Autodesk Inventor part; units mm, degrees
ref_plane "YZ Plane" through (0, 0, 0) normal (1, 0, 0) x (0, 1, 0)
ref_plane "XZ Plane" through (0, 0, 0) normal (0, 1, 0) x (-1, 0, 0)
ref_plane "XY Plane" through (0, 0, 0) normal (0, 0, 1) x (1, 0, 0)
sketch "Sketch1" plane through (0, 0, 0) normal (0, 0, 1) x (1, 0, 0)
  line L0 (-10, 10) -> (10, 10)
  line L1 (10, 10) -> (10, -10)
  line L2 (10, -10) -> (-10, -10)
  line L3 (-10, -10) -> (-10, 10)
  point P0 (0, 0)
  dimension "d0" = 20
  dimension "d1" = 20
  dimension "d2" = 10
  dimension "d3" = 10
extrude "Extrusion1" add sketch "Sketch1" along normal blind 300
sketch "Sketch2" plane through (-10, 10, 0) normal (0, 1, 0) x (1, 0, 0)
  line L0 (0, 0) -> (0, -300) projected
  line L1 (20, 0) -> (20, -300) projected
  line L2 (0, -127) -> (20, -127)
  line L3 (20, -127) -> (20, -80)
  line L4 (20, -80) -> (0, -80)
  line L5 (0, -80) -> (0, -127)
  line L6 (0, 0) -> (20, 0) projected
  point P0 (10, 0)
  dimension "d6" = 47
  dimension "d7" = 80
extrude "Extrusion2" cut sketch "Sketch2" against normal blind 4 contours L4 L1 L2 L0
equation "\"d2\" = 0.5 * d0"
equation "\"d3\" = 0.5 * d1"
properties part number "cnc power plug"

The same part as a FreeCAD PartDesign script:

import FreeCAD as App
import Part
import Sketcher

V = App.Vector

doc = App.newDocument("Part")
body = doc.addObject("PartDesign::Body", "Body")

# Sketch on XY plane
sketch1 = body.newObject("Sketcher::SketchObject", "Sketch")
sketch1.AttachmentSupport = (doc.getObject("XY_Plane"), [""])
sketch1.MapMode = "FlatFace"
sketch1.addGeometry(Part.LineSegment(V(10, 10, 0), V(-10, 10, 0)), False)
sketch1.addGeometry(Part.LineSegment(V(-10, 10, 0), V(-10, -10, 0)), False)
sketch1.addGeometry(Part.LineSegment(V(-10, -10, 0), V(10, -10, 0)), False)
sketch1.addGeometry(Part.LineSegment(V(10, -10, 0), V(10, 10, 0)), False)
sketch1.addConstraint(Sketcher.Constraint("Coincident", 0, 2, 1, 1))
sketch1.addConstraint(Sketcher.Constraint("Coincident", 1, 2, 2, 1))
sketch1.addConstraint(Sketcher.Constraint("Coincident", 2, 2, 3, 1))
sketch1.addConstraint(Sketcher.Constraint("Coincident", 3, 2, 0, 1))
sketch1.addConstraint(Sketcher.Constraint("Horizontal", 0))
sketch1.addConstraint(Sketcher.Constraint("Vertical", 1))
sketch1.addConstraint(Sketcher.Constraint("Horizontal", 2))
sketch1.addConstraint(Sketcher.Constraint("Vertical", 3))
sketch1.addConstraint(Sketcher.Constraint("Symmetric", 0, 2, 2, 2, -1, 1))
sketch1.addConstraint(Sketcher.Constraint("Equal", 2, 1))
sketch1.addConstraint(Sketcher.Constraint("DistanceX", 0, 2, 0, 1, 20.0))
pad1 = body.newObject("PartDesign::Pad", "Pad")
pad1.Profile = sketch1
pad1.Length = 300

# Sketch on XZ plane
sketch2 = body.newObject("Sketcher::SketchObject", "Sketch001")
sketch2.AttachmentSupport = (doc.getObject("XZ_Plane"), [""])
sketch2.MapMode = "FlatFace"
sketch2.AttachmentOffset = App.Placement(V(0, 0, -10), App.Rotation())
sketch2.addGeometry(Part.LineSegment(V(10, 80, 0), V(-10, 80, 0)), False)
sketch2.addGeometry(Part.LineSegment(V(-10, 80, 0), V(-10, 127, 0)), False)
sketch2.addGeometry(Part.LineSegment(V(-10, 127, 0), V(10, 127, 0)), False)
sketch2.addGeometry(Part.LineSegment(V(10, 127, 0), V(10, 80, 0)), False)
sketch2.addConstraint(Sketcher.Constraint("Coincident", 0, 2, 1, 1))
sketch2.addConstraint(Sketcher.Constraint("Coincident", 1, 2, 2, 1))
sketch2.addConstraint(Sketcher.Constraint("Coincident", 2, 2, 3, 1))
sketch2.addConstraint(Sketcher.Constraint("Coincident", 3, 2, 0, 1))
sketch2.addConstraint(Sketcher.Constraint("Horizontal", 0))
sketch2.addConstraint(Sketcher.Constraint("Vertical", 1))
sketch2.addConstraint(Sketcher.Constraint("Horizontal", 2))
sketch2.addConstraint(Sketcher.Constraint("Vertical", 3))
sketch2.addConstraint(Sketcher.Constraint("DistanceY", 1, 1, 1, 2, 47.0))
sketch2.addConstraint(Sketcher.Constraint("DistanceY", -1, 1, 0, 2, 80.0))
sketch2.addConstraint(Sketcher.Constraint("DistanceX", 0, 2, 0, 1, 20.0))
sketch2.addConstraint(Sketcher.Constraint("DistanceX", 0, 2, -1, 1, 10.0))
pocket1 = body.newObject("PartDesign::Pocket", "Pocket")
pocket1.Profile = sketch2
pocket1.Length = 4
pocket1.Reversed = True

doc.recompute()
